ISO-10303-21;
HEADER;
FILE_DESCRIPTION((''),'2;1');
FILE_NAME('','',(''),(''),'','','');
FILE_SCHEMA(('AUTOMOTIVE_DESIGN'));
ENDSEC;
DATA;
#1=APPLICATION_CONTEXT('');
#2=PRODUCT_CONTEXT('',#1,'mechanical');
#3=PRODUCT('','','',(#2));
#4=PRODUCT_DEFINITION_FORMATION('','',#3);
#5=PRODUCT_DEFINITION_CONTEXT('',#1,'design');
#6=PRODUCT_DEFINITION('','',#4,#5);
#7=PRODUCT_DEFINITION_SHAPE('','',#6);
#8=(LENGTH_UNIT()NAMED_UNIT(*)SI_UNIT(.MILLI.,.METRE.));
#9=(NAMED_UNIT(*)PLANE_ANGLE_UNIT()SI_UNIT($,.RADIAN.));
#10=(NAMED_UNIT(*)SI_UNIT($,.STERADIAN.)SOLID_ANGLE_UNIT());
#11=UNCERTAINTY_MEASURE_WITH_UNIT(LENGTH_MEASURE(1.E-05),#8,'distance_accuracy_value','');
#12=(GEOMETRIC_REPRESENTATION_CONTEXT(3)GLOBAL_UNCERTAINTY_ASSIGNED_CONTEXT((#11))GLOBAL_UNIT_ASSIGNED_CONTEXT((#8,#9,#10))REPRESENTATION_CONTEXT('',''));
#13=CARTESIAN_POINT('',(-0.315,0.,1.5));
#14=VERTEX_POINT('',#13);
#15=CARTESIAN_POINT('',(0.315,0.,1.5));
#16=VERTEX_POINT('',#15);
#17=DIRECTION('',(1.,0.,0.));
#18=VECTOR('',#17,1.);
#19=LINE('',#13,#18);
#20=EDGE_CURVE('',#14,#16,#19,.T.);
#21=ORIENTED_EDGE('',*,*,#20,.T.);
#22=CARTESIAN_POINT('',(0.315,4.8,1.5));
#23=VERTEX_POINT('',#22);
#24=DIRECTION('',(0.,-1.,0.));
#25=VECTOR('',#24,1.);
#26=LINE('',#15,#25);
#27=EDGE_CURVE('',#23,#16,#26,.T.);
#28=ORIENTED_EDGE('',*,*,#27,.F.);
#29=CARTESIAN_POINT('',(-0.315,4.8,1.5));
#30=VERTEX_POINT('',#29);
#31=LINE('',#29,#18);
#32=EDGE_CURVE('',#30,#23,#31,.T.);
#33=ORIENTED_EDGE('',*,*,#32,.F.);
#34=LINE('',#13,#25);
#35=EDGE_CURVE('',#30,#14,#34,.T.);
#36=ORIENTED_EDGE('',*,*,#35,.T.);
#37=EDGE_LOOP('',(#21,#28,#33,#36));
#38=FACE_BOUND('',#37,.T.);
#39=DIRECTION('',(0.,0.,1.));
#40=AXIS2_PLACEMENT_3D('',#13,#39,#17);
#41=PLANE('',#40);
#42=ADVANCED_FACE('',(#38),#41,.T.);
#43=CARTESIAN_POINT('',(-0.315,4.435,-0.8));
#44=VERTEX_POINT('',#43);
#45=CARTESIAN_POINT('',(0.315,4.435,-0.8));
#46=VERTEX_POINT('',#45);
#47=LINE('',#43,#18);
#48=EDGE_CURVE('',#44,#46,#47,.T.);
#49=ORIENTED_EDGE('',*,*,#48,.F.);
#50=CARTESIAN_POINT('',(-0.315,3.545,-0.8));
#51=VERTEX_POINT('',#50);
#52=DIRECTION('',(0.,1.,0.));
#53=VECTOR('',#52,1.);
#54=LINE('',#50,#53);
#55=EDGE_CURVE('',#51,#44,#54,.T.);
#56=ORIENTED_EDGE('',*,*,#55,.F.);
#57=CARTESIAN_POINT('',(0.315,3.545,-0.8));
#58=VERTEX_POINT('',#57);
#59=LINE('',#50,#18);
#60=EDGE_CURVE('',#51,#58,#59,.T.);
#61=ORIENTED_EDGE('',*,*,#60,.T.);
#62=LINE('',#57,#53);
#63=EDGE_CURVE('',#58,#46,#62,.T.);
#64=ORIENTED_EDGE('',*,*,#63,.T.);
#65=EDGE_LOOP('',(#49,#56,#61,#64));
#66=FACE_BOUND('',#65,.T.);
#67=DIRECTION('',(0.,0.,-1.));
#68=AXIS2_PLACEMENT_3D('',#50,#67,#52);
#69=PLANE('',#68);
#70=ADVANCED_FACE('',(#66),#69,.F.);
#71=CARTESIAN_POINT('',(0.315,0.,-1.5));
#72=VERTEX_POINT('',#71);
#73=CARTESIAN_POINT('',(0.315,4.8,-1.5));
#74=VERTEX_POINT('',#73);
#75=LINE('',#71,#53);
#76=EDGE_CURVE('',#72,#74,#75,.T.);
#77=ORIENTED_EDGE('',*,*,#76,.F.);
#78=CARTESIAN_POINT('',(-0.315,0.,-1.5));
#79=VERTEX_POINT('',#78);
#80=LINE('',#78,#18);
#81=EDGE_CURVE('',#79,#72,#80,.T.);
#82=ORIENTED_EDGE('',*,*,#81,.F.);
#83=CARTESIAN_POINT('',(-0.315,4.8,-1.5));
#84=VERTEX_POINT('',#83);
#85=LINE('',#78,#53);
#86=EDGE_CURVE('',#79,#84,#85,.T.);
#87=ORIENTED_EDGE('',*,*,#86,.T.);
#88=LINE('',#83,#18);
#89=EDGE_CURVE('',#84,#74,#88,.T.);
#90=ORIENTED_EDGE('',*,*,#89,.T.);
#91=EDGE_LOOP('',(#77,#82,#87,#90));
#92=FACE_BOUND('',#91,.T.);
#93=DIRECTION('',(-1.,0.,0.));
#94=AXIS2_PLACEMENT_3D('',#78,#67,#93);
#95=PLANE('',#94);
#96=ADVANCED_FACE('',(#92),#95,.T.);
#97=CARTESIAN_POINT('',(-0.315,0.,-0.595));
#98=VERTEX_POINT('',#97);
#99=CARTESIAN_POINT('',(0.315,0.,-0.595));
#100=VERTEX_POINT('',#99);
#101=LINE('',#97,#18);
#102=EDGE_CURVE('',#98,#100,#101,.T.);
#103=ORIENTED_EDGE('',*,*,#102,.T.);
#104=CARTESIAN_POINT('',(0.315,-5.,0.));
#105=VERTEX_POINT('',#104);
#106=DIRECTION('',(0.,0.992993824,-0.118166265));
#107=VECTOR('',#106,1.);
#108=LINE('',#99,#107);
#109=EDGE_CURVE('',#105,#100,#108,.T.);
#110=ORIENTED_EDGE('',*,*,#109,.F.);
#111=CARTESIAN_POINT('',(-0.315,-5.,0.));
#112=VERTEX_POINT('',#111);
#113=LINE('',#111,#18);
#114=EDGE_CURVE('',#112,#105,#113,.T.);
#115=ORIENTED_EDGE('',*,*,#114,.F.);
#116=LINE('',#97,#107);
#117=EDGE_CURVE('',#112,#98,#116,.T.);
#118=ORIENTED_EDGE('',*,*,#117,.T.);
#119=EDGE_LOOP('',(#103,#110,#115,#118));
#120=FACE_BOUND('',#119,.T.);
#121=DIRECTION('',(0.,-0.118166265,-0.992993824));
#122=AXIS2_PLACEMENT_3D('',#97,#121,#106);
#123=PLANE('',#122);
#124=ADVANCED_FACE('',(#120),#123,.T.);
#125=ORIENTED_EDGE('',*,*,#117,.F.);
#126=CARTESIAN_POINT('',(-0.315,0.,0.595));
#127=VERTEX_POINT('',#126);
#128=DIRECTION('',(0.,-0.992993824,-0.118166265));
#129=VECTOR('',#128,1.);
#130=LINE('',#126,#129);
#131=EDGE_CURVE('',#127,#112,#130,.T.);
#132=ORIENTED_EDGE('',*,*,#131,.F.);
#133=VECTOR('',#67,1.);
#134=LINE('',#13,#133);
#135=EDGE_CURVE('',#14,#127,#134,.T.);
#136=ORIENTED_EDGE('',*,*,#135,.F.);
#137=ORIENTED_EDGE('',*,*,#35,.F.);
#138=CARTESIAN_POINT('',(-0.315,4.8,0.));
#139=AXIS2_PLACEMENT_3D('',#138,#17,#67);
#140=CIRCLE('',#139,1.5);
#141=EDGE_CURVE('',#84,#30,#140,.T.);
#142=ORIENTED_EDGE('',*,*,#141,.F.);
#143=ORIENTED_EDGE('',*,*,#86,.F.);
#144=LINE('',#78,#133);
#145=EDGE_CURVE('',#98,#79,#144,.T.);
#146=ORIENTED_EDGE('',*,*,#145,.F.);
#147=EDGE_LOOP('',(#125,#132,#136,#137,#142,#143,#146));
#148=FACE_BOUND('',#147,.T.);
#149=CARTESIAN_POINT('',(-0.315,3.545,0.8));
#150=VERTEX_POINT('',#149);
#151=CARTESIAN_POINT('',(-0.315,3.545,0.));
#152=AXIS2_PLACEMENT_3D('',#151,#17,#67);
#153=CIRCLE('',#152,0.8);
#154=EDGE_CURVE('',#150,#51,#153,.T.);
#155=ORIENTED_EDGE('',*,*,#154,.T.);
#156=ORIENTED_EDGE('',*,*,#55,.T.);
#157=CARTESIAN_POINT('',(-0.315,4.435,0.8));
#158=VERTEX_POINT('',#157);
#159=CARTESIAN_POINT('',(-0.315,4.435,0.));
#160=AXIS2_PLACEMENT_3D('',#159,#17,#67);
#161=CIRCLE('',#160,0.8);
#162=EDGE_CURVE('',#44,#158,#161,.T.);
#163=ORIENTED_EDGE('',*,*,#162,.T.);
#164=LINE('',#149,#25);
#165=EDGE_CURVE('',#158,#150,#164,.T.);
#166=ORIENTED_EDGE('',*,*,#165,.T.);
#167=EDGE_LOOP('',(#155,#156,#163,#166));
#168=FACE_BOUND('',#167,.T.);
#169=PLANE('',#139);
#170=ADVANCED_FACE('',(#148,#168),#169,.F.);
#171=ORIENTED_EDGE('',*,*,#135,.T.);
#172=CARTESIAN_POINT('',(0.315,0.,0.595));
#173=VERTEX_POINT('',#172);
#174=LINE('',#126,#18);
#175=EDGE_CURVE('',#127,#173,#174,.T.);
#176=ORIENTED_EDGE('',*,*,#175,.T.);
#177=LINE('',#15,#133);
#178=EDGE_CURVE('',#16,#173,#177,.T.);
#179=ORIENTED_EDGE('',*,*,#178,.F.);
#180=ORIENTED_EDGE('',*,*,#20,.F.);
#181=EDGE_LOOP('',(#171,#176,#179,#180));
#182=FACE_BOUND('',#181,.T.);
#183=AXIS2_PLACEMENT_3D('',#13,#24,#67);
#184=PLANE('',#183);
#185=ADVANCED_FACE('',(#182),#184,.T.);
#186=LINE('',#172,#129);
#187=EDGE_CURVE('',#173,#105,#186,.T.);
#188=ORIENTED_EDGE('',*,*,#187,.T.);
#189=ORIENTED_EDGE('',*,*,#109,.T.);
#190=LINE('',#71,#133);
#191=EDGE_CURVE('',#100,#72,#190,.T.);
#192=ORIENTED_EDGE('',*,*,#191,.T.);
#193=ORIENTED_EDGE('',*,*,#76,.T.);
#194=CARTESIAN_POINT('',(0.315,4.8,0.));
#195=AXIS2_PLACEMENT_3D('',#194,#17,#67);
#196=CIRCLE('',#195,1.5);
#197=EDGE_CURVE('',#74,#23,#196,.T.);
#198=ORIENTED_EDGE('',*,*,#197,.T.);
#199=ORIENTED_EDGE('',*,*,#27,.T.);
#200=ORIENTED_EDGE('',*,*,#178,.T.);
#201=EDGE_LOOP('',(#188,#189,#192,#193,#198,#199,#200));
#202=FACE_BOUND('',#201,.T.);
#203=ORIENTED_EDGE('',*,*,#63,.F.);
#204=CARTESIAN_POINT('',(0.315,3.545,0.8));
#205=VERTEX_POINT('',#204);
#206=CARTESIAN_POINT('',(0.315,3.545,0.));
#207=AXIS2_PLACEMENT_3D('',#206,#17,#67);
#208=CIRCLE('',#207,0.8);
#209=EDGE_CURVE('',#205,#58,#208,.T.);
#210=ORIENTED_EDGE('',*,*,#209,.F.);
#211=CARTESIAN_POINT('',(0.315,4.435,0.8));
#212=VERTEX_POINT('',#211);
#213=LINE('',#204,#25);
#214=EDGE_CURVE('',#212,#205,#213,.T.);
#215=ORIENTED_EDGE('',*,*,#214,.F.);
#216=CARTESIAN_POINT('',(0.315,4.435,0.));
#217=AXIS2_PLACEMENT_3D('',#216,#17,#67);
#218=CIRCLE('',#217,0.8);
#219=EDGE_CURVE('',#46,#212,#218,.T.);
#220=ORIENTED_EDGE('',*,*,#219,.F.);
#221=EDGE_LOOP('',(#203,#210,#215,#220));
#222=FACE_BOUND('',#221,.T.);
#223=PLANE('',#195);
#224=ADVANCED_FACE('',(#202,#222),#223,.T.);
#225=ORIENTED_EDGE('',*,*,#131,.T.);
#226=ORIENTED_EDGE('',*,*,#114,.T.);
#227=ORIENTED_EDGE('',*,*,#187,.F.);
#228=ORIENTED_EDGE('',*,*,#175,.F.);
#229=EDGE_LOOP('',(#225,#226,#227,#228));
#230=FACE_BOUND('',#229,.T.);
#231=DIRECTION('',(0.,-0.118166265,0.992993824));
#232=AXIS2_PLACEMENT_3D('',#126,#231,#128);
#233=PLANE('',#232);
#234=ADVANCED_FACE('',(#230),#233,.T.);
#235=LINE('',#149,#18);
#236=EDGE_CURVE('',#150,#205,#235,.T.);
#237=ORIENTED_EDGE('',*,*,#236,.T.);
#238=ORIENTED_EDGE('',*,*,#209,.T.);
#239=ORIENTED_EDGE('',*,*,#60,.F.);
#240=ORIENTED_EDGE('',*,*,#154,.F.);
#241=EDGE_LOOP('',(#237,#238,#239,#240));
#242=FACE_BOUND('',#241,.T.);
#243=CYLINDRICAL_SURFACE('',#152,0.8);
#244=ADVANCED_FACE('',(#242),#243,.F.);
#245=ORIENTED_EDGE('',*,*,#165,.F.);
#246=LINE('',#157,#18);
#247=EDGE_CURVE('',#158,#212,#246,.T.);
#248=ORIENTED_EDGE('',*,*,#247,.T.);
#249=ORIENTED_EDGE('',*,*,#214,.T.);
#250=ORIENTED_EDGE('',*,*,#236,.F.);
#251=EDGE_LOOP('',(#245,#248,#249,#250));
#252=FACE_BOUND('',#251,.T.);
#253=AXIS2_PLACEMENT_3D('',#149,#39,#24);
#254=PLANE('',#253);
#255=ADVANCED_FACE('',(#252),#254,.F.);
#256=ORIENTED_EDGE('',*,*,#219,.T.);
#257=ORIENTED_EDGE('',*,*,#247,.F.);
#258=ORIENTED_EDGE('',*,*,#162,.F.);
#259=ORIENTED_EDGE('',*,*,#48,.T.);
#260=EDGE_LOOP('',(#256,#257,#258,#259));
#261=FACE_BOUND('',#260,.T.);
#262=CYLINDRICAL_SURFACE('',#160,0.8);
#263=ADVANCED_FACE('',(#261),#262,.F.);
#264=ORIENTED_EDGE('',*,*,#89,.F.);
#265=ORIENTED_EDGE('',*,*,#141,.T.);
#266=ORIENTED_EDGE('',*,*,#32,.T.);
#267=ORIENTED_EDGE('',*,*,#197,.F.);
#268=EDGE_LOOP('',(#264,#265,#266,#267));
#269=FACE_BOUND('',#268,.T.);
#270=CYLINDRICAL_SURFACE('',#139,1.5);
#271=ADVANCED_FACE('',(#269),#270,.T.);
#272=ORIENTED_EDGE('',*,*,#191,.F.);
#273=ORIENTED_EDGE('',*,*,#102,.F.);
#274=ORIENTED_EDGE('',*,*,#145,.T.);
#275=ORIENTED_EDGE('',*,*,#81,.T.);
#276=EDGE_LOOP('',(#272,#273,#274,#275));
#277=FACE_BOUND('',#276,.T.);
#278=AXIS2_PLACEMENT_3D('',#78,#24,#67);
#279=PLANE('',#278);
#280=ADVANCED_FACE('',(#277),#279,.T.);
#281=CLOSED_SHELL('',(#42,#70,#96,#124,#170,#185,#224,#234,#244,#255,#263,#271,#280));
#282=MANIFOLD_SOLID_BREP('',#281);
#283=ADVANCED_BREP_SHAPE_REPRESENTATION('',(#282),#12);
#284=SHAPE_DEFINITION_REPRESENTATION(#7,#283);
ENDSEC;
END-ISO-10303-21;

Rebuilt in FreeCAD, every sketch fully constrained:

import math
import FreeCAD as App
import Part
import Sketcher

doc = App.newDocument("Part")
body = doc.addObject("PartDesign::Body", "Body")

# Sketch on YZ plane
sketch1 = doc.addObject("Sketcher::SketchObject", "Sketch")
body.addObject(sketch1)
sketch1.AttachmentSupport = (doc.YZ_Plane, [""])
sketch1.MapMode = "FlatFace"
sketch1.addGeometry([
    Part.LineSegment(App.Vector(0, -0.6, 0), App.Vector(0, -1.5, 0)),  # 0
    Part.LineSegment(App.Vector(0, -1.5, 0), App.Vector(4.8, -1.5, 0)),  # 1
    Part.ArcOfCircle(Part.Circle(App.Vector(4.8, 0, 0), App.Vector(0, 0, 1), 1.5), math.radians(-90), math.radians(90)),  # 2
    Part.LineSegment(App.Vector(4.8, 1.5, 0), App.Vector(0, 1.5, 0)),  # 3
    Part.LineSegment(App.Vector(0, 1.5, 0), App.Vector(0, 0.6, 0)),  # 4
    Part.LineSegment(App.Vector(0, 0.6, 0), App.Vector(-5, 0, 0)),  # 5
    Part.LineSegment(App.Vector(-5, 0, 0), App.Vector(0, -0.6, 0)),  # 6
    Part.LineSegment(App.Vector(3.5, 0.8, 0), App.Vector(4.4, 0.8, 0)),  # 7
    Part.ArcOfCircle(Part.Circle(App.Vector(4.4, 0, 0), App.Vector(0, 0, 1), 0.8), math.radians(-90), math.radians(90)),  # 8
    Part.LineSegment(App.Vector(4.4, -0.8, 0), App.Vector(3.5, -0.8, 0)),  # 9
    Part.ArcOfCircle(Part.Circle(App.Vector(3.5, 0, 0), App.Vector(0, 0, 1), 0.8), math.radians(90), math.radians(270)),  # 10
], False)
sketch1.addConstraint([
    Sketcher.Constraint("Coincident", 0, 2, 1, 1),
    Sketcher.Constraint("Tangent", 1, 2, 2, 1),
    Sketcher.Constraint("Tangent", 2, 2, 3, 1),
    Sketcher.Constraint("Coincident", 3, 2, 4, 1),
    Sketcher.Constraint("Coincident", 4, 2, 5, 1),
    Sketcher.Constraint("Coincident", 5, 2, 6, 1),
    Sketcher.Constraint("Coincident", 6, 2, 0, 1),
    Sketcher.Constraint("Tangent", 7, 2, 8, 2),
    Sketcher.Constraint("Tangent", 8, 1, 9, 1),
    Sketcher.Constraint("Tangent", 9, 2, 10, 2),
    Sketcher.Constraint("Tangent", 10, 1, 7, 1),
    Sketcher.Constraint("Vertical", 0),
    Sketcher.Constraint("Horizontal", 1),
    Sketcher.Constraint("Horizontal", 3),
    Sketcher.Constraint("Vertical", 4),
    Sketcher.Constraint("Horizontal", 7),
    Sketcher.Constraint("Horizontal", 9),
    Sketcher.Constraint("Symmetric", 0, 2, 3, 2, -1, 1),
    Sketcher.Constraint("Symmetric", 4, 2, 6, 2, -1),
    Sketcher.Constraint("PointOnObject", 8, 3, -1),
    Sketcher.Constraint("PointOnObject", 5, 2, -1),
    Sketcher.Constraint("Radius", 2, 1.5),
    Sketcher.Constraint("Radius", 8, 0.8),
    Sketcher.Constraint("DistanceX", 1, 1, 1, 2, 4.8),
    Sketcher.Constraint("DistanceX", 5, 2, -1, 1, 5.0),
    Sketcher.Constraint("DistanceX", 7, 1, 7, 2, 0.89),
    Sketcher.Constraint("DistanceY", 0, 2, 0, 1, 0.905),
    Sketcher.Constraint("DistanceX", -1, 1, 8, 3, 4.435),
])
pad1 = doc.addObject("PartDesign::Pad", "Pad")
body.addObject(pad1)
pad1.Profile = sketch1
pad1.Type = "TwoLengths"
pad1.Length = 0.315
pad1.Length2 = 0.315

doc.recompute()
